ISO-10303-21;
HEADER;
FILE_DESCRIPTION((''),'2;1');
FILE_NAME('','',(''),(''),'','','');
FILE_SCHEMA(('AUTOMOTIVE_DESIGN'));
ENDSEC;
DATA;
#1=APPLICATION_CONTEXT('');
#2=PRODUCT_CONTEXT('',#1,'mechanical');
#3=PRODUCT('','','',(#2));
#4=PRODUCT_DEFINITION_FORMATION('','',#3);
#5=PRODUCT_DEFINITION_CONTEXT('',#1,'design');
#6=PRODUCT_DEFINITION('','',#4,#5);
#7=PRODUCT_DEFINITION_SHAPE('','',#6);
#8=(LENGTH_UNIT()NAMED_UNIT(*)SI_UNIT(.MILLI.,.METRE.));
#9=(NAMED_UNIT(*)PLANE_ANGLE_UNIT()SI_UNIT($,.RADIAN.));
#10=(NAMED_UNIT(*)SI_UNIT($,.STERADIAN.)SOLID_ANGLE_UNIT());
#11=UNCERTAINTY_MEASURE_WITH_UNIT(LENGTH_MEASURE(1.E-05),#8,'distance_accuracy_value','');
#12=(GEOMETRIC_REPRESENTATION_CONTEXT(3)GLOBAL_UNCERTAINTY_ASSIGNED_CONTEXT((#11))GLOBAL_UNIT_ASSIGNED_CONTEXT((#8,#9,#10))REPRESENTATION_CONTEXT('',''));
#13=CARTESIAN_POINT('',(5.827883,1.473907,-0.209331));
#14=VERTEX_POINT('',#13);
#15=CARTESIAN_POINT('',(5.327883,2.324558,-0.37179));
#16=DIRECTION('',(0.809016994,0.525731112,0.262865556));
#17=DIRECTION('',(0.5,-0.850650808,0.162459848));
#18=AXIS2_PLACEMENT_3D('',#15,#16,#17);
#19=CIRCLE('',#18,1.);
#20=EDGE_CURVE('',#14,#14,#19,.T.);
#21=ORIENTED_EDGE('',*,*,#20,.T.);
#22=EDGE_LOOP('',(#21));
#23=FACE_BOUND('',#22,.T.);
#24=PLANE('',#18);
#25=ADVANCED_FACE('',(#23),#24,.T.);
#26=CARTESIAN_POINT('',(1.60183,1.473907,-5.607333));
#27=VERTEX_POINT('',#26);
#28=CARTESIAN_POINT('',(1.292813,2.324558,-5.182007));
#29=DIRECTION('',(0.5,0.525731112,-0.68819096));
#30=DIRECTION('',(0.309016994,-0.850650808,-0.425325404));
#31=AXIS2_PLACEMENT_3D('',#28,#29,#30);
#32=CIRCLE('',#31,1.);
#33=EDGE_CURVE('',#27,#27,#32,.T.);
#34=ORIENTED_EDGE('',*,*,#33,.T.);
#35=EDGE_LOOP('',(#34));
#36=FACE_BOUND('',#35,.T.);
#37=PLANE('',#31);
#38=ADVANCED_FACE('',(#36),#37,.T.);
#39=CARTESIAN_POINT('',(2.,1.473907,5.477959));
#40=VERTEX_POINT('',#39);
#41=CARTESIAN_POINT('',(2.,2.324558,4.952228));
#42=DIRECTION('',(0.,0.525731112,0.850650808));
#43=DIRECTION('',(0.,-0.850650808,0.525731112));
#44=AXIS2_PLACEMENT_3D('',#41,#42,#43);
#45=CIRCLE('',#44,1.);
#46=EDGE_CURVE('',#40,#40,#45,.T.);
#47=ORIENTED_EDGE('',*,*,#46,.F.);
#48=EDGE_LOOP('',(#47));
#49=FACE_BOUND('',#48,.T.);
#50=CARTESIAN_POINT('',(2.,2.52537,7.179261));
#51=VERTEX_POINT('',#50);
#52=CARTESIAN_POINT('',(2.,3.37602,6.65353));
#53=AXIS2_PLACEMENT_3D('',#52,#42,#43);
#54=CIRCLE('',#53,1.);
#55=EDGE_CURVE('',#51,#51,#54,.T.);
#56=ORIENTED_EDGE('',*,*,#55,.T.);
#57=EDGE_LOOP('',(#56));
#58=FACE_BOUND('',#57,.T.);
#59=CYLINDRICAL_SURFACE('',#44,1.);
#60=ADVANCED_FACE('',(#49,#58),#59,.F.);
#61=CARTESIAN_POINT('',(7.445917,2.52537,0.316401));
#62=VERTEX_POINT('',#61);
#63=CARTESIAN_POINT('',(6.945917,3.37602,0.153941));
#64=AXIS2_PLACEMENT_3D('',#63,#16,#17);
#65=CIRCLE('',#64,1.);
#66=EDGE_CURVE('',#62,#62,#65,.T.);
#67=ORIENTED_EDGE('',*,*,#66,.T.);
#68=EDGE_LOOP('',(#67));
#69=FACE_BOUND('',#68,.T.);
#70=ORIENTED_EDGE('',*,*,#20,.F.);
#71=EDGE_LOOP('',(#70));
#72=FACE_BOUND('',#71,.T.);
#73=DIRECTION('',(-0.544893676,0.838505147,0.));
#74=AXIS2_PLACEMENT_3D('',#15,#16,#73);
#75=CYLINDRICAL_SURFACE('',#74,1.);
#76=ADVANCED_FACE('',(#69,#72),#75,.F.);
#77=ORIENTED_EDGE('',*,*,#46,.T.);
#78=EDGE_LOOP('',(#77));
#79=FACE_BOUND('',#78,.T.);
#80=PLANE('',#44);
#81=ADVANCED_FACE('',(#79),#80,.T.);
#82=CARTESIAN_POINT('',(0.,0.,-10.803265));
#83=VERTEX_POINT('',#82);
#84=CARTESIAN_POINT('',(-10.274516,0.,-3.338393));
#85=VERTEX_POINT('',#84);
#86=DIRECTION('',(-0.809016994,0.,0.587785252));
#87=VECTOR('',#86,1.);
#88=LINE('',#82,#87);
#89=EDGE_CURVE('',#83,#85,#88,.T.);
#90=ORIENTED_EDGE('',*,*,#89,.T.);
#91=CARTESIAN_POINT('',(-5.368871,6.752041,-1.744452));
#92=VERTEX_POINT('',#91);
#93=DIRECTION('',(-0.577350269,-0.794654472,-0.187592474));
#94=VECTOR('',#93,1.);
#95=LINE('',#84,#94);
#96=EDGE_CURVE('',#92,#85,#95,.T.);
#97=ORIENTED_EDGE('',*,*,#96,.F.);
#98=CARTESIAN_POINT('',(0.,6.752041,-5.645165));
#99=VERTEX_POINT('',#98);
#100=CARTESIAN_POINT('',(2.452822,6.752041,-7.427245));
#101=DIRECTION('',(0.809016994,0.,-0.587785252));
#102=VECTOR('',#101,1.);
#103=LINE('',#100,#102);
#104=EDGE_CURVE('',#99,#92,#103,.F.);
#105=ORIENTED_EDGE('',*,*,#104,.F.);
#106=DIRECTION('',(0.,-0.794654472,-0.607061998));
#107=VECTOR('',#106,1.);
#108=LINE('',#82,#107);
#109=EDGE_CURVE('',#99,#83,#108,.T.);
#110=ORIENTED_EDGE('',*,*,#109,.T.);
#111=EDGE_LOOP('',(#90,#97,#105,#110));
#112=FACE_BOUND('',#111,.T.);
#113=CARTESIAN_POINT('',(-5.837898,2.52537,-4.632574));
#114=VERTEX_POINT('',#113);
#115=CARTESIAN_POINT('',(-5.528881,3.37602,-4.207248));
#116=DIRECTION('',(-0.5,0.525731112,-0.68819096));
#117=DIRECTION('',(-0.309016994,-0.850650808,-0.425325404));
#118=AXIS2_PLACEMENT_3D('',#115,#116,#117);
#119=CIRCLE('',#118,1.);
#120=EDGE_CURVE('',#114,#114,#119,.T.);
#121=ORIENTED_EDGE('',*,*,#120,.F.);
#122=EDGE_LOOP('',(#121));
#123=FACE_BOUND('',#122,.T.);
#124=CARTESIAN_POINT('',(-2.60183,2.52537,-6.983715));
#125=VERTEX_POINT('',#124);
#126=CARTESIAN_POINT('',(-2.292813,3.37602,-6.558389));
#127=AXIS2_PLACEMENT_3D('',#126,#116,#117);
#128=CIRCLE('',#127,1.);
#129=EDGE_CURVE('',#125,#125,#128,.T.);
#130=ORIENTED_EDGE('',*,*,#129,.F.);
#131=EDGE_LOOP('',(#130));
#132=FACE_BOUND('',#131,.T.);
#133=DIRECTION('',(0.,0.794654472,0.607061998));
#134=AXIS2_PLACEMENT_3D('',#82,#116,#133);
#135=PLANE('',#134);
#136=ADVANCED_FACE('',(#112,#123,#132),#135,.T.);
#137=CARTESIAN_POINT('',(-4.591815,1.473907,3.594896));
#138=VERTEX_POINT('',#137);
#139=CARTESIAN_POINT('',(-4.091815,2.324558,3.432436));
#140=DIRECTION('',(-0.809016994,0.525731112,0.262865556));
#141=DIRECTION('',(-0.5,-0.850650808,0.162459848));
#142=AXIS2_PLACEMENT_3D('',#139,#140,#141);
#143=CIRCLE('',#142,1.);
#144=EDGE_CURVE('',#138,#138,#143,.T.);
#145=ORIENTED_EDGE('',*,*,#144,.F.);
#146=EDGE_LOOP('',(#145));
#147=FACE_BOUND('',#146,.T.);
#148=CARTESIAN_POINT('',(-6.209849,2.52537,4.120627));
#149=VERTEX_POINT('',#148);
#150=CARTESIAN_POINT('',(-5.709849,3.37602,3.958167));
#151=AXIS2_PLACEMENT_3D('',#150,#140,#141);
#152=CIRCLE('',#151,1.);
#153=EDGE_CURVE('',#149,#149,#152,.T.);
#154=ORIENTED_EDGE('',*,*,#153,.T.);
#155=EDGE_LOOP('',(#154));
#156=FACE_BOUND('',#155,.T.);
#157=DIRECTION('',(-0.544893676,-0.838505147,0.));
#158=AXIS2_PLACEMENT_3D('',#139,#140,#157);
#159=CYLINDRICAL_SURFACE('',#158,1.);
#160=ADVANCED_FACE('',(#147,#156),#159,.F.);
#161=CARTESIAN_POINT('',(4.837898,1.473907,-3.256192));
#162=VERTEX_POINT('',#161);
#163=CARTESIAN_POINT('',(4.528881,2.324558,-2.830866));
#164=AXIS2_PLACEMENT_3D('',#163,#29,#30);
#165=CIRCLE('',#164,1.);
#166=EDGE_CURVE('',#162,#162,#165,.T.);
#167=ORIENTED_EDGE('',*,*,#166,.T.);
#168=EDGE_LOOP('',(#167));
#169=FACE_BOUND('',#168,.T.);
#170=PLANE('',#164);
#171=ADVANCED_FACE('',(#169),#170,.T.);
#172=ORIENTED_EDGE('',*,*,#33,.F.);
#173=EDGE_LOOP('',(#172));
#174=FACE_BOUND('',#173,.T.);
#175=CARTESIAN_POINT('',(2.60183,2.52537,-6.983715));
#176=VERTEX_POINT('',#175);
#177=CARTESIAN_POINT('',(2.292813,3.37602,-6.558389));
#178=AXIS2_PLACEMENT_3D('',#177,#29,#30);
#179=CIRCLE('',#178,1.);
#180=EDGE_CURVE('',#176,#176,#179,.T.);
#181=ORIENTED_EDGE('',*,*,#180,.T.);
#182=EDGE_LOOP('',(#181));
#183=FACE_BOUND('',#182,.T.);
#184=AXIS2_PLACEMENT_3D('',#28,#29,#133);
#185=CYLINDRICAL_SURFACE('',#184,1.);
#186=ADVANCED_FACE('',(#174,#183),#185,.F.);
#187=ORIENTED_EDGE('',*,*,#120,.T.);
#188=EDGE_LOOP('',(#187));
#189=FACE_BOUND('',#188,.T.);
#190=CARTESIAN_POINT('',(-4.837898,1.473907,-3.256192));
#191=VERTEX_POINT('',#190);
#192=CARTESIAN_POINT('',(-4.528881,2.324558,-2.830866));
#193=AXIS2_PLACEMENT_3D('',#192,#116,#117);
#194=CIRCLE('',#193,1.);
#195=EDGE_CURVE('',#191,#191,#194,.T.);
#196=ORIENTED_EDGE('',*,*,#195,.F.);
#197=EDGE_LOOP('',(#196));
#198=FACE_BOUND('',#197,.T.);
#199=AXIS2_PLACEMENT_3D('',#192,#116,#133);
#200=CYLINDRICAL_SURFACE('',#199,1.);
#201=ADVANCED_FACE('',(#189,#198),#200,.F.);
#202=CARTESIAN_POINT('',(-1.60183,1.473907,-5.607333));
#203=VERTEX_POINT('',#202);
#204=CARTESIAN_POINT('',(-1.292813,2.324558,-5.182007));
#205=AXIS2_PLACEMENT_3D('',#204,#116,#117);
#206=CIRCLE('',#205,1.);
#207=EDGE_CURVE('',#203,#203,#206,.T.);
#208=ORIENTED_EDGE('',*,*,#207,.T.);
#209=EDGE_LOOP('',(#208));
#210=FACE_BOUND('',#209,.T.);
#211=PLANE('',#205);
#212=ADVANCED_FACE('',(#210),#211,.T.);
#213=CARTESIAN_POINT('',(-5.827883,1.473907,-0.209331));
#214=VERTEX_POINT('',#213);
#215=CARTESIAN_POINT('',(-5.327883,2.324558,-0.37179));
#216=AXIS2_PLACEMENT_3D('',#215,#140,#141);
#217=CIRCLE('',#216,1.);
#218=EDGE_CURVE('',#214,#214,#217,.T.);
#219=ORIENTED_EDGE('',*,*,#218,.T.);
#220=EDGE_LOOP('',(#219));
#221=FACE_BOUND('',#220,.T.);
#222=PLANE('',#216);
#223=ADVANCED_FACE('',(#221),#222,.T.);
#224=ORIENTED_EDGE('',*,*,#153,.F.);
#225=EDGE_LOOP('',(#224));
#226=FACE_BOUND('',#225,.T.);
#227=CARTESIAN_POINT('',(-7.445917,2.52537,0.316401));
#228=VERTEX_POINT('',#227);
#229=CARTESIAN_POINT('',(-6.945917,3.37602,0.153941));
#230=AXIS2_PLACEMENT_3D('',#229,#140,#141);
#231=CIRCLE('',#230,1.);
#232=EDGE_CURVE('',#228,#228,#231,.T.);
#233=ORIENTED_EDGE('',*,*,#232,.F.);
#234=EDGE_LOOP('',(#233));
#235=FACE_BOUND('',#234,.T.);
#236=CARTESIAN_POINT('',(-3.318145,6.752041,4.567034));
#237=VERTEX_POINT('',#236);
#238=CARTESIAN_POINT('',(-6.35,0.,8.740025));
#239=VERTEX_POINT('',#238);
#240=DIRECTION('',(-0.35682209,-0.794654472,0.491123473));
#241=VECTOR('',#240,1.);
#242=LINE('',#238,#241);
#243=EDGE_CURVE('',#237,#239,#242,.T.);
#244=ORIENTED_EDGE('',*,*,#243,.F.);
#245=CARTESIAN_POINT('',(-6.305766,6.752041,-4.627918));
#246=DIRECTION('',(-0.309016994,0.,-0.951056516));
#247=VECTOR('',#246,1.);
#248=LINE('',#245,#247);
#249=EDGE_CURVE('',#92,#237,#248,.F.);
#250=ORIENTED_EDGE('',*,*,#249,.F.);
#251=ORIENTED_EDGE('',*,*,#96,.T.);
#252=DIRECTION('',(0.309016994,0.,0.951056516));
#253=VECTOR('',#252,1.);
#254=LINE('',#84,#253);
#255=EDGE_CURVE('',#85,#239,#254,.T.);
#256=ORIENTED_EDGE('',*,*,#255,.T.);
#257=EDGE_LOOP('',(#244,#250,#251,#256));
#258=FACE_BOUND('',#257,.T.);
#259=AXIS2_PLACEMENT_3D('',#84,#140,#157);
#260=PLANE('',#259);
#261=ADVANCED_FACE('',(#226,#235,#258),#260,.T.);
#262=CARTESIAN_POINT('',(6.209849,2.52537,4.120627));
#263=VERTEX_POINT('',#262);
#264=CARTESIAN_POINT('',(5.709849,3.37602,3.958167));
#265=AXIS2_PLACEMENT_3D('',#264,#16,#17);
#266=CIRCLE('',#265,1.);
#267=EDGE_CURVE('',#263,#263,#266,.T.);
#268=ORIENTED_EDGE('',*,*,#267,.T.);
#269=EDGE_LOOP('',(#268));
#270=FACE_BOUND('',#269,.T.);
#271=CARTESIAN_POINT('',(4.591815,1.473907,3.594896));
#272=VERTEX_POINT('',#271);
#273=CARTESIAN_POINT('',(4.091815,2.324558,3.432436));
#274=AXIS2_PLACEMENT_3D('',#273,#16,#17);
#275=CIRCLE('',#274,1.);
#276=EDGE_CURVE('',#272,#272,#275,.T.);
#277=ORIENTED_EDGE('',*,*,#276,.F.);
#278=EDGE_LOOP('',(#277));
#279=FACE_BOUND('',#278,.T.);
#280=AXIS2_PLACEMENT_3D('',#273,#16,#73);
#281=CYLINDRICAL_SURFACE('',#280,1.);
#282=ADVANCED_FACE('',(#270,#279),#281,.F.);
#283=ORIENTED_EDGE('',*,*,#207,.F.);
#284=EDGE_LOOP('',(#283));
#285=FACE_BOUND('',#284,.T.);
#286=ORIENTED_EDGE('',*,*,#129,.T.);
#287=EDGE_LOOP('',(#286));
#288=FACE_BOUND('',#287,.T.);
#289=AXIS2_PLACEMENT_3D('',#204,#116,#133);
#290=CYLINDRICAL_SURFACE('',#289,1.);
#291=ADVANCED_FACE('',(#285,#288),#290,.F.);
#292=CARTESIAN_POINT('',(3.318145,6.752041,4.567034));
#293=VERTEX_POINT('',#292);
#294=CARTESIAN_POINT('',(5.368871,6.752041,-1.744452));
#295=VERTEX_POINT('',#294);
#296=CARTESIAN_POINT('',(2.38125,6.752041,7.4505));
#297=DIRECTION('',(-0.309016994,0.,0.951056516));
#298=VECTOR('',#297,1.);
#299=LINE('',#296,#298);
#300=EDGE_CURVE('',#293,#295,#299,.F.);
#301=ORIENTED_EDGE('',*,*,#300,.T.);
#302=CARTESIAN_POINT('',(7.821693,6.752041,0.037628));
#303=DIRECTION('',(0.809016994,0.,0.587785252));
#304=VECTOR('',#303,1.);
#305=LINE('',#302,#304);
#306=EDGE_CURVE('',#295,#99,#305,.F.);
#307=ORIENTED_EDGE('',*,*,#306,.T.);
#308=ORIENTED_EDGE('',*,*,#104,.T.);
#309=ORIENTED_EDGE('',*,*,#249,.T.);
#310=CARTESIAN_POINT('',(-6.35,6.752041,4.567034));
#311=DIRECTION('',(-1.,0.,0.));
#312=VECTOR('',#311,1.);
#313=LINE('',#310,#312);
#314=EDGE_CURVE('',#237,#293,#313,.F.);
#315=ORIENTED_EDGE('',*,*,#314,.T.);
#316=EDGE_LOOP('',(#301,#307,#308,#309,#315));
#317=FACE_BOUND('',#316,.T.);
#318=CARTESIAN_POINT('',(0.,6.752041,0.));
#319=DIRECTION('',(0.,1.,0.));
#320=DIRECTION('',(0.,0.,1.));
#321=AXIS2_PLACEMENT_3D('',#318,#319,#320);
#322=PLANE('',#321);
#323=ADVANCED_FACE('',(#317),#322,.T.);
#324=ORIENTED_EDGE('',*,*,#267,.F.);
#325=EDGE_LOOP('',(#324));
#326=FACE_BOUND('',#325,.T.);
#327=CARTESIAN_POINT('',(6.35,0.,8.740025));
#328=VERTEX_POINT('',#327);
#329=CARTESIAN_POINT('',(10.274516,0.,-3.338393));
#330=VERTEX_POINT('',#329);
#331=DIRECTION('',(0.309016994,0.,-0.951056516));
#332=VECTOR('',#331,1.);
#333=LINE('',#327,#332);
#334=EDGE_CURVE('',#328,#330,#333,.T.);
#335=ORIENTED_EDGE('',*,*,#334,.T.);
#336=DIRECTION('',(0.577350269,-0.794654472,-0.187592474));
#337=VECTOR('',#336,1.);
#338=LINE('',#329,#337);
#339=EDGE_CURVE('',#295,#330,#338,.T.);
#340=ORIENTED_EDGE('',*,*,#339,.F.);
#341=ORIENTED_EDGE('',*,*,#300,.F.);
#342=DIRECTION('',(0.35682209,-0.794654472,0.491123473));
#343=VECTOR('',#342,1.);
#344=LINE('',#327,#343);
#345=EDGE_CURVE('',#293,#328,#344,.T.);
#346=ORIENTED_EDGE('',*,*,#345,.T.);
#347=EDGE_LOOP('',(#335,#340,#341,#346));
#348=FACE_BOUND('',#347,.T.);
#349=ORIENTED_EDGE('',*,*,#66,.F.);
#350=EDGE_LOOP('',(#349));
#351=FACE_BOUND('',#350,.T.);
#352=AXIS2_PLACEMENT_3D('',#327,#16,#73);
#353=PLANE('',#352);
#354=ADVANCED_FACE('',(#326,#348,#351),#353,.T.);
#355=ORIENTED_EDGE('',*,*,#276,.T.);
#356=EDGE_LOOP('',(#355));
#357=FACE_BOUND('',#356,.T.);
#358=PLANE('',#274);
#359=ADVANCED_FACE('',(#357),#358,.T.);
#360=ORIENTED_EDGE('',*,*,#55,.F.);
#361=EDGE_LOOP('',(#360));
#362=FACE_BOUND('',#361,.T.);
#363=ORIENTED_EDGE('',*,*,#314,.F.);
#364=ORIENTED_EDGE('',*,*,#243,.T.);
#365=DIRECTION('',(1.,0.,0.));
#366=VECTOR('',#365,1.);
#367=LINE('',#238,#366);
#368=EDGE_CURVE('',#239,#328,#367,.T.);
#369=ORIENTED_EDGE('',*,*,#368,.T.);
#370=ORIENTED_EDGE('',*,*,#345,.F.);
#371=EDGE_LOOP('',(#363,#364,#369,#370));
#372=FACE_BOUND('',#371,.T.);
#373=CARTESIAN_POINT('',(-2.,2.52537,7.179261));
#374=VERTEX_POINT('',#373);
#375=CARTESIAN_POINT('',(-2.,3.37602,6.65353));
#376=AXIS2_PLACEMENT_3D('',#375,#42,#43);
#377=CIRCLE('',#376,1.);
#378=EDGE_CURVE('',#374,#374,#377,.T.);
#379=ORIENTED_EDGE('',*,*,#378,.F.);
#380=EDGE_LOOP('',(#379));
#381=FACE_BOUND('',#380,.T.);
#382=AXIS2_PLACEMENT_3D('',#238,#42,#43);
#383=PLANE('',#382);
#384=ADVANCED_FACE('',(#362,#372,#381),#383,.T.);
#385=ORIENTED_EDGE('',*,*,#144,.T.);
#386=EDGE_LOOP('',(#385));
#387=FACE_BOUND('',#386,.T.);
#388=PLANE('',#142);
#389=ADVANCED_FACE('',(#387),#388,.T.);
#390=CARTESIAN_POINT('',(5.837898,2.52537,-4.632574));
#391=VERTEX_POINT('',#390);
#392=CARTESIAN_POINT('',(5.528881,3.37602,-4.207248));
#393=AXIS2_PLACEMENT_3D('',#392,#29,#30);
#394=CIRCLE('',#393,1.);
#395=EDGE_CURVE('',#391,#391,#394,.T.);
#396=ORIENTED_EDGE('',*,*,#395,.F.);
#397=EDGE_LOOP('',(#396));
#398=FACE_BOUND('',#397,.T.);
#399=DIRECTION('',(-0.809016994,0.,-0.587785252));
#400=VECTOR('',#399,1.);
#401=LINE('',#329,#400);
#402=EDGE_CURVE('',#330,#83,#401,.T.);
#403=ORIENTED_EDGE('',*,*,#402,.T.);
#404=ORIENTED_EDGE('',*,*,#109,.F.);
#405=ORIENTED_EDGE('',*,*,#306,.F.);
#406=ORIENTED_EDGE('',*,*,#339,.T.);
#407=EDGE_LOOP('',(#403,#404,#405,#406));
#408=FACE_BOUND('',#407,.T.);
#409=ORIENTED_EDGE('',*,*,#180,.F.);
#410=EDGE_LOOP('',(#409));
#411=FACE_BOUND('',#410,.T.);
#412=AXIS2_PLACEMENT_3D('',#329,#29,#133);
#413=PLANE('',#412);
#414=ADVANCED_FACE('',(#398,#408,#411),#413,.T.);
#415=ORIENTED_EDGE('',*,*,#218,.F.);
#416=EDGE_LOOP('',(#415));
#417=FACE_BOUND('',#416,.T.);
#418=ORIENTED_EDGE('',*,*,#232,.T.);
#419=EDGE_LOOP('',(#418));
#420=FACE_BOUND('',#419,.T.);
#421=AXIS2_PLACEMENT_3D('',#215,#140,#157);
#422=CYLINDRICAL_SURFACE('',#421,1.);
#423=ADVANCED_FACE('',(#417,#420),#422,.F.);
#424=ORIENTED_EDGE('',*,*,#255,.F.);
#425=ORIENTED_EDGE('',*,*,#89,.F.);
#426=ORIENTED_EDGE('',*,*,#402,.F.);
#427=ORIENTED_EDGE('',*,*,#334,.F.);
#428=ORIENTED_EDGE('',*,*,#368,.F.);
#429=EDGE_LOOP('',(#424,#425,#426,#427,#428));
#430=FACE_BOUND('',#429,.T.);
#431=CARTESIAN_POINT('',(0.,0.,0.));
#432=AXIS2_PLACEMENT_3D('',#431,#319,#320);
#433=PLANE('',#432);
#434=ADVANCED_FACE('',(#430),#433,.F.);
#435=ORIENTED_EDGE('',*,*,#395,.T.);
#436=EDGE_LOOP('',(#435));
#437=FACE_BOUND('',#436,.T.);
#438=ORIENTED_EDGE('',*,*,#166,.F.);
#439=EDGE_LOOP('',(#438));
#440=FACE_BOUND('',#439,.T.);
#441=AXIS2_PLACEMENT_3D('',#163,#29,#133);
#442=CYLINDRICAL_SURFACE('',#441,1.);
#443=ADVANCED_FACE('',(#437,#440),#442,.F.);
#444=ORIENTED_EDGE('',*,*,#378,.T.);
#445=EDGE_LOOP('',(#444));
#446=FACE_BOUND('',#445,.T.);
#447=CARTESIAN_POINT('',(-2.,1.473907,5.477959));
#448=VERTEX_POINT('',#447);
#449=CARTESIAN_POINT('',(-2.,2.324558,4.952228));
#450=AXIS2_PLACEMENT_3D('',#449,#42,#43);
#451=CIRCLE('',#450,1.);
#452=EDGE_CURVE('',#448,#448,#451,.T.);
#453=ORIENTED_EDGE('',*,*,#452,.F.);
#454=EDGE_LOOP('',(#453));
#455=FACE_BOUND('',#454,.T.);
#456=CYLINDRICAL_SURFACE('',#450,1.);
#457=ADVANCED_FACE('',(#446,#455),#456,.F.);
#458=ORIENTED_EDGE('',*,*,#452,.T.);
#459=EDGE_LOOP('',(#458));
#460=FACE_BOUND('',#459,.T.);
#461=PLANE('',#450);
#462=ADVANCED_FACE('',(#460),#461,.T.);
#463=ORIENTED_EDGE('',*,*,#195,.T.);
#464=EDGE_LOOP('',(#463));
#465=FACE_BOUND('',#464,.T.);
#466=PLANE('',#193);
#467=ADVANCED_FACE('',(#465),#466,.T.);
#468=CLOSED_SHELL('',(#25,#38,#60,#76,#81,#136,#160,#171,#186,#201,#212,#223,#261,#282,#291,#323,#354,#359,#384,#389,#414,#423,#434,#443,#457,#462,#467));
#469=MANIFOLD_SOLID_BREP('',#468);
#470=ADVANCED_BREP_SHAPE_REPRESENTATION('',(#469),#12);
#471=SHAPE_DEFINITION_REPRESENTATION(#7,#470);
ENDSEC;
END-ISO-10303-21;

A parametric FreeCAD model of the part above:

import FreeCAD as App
import Part
import Sketcher

V = App.Vector
Q = App.Units.Quantity

doc = App.newDocument("Part")
params = doc.addObject("Spreadsheet::Sheet", "Params")
for row, (alias, value) in enumerate([
    ("sketch1_width", "12.7 mm"),
    ("pad1_length", "6.752041 mm"),
    ("pad1_taper", "-31.717474 deg"),
    ("sketch2_diameter", "2 mm"),
    ("pocket1_length", "2 mm"),
], start=1):
    params.set(f"A{row}", alias)
    params.set(f"B{row}", "=" + value)
    params.setAlias(f"B{row}", alias)

body = doc.addObject("PartDesign::Body", "Body")

# Sketch on XZ plane
sketch1 = doc.addObject("Sketcher::SketchObject", "Sketch")
body.addObject(sketch1)
sketch1.AttachmentSupport = (doc.XZ_Plane, [""])
sketch1.MapMode = "FlatFace"
sketch1.addGeometry([
    Part.LineSegment(V(0, -11, 0), V(-10, -3, 0)),  # 0
    Part.LineSegment(V(-10, -3, 0), V(-6, 9, 0)),  # 1
    Part.LineSegment(V(-6, 9, 0), V(6, 9, 0)),  # 2
    Part.LineSegment(V(6, 9, 0), V(10, -3, 0)),  # 3
    Part.LineSegment(V(10, -3, 0), V(0, -11, 0)),  # 4
], False)
sketch1.addConstraint([
    Sketcher.Constraint("Coincident", 0, 2, 1, 1),
    Sketcher.Constraint("Coincident", 1, 2, 2, 1),
    Sketcher.Constraint("Coincident", 2, 2, 3, 1),
    Sketcher.Constraint("Coincident", 3, 2, 4, 1),
    Sketcher.Constraint("Coincident", 4, 2, 0, 1),
    Sketcher.Constraint("Horizontal", 2),
    Sketcher.Constraint("Symmetric", 0, 2, 3, 2, -2),
    Sketcher.Constraint("PointOnObject", 4, 2, -2),
    Sketcher.Constraint("Equal", 0, 1),
    Sketcher.Constraint("Equal", 1, 3),
    Sketcher.Constraint("Angle", 0, Q("144 deg")),
    Sketcher.Constraint("Angle", 1, Q("72 deg")),
    Sketcher.Constraint("DistanceX", 2, 1, 2, 2, Q("12.7 mm")),
    Sketcher.Constraint("DistanceY", 0, 2, -1, 1, Q("3.338393 mm")),
])
sketch1.setExpression("Constraints[12]", "Params.sketch1_width")
pad1 = doc.addObject("PartDesign::Pad", "Pad")
body.addObject(pad1)
pad1.Profile = sketch1
pad1.setExpression("Length", "Params.pad1_length")
pad1.Reversed = True
pad1.setExpression("TaperAngle", "Params.pad1_taper")

# Sketch on an angled plane
sketch2 = doc.addObject("Sketcher::SketchObject", "Sketch001")
body.addObject(sketch2)
sketch2.Placement = App.Placement(V(0, 3.908658, 6.324342), App.Rotation(V(1, 0, 0), V(0, 0.850650808, -0.525731112), V(0, 0.525731112, 0.850650808), "ZXY"))
sketch2.addGeometry([
    Part.Circle(V(-2, -0.6, 0), V(0, 0, 1), 1),
    Part.Circle(V(2, -0.6, 0), V(0, 0, 1), 1),
], False)
sketch2.addConstraint([
    Sketcher.Constraint("Equal", 0, 1),
    Sketcher.Constraint("Symmetric", 0, 3, 1, 3, -2),
    Sketcher.Constraint("Diameter", 0, Q("2 mm")),
    Sketcher.Constraint("DistanceX", 0, 3, -1, 1, Q("2 mm")),
    Sketcher.Constraint("DistanceY", 0, 3, -1, 1, Q("0.626153 mm")),
])
sketch2.setExpression("Constraints[2]", "Params.sketch2_diameter")
pocket1 = doc.addObject("PartDesign::Pocket", "Pocket")
body.addObject(pocket1)
pocket1.Profile = sketch2
pocket1.setExpression("Length", "Params.pocket1_length")
doc.recompute()

polarpattern = doc.addObject("PartDesign::PolarPattern", "PolarPattern")
body.addObject(polarpattern)
polarpattern.Originals = [pocket1]
polarpattern.Axis = (doc.Y_Axis, [""])
polarpattern.Angle = 360
polarpattern.Occurrences = 5
body.Tip = polarpattern

doc.recompute()
